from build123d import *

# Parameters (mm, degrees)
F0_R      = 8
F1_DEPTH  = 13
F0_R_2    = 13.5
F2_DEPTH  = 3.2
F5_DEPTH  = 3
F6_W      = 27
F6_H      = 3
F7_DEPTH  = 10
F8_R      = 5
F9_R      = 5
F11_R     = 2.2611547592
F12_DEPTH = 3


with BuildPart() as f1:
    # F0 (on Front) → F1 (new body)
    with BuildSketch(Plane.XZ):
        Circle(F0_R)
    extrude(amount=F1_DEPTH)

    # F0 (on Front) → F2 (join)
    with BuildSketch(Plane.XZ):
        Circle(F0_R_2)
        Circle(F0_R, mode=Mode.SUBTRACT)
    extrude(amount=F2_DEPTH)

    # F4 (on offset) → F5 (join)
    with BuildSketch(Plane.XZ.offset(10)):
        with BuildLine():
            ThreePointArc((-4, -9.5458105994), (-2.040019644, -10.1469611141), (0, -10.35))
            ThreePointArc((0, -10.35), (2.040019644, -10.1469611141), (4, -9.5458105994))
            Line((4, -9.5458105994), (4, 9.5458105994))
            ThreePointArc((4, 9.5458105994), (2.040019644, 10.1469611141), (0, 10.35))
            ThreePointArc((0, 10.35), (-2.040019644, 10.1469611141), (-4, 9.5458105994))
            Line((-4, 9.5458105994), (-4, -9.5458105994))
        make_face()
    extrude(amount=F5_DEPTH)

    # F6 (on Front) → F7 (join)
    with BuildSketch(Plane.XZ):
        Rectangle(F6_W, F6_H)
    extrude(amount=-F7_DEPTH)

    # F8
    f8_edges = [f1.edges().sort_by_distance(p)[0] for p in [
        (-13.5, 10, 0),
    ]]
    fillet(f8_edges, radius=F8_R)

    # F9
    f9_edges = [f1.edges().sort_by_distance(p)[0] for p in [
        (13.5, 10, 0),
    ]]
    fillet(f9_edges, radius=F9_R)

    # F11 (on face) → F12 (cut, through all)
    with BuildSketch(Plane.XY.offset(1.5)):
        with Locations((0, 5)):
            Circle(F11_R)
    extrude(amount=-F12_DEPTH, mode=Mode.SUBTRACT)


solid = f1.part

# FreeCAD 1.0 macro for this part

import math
import FreeCAD as App
import Part
import Sketcher


def edges_at(feature, points):
    """Names of the edges that pass closest to the given points."""
    edges = feature.Shape.Edges
    near = lambda p: min(range(len(edges)), key=lambda i: edges[i].distToShape(Part.Vertex(*p))[0])
    return sorted({f"Edge{near(p) + 1}" for p in points})

doc = App.newDocument("Part")
body = doc.addObject("PartDesign::Body", "Body")

# Sketch on XZ plane
sketch1 = body.newObject("Sketcher::SketchObject", "Sketch")
sketch1.AttachmentSupport = (doc.getObject("XZ_Plane"), [""])
sketch1.MapMode = "FlatFace"
sketch1.addGeometry(Part.Circle(App.Vector(0, 0, 0), App.Vector(0, 0, 1), 8), False)
sketch1.addConstraint(Sketcher.Constraint("Coincident", 0, 3, -1, 1))
sketch1.addConstraint(Sketcher.Constraint("Diameter", 0, 16.0))
pad1 = body.newObject("PartDesign::Pad", "Pad")
pad1.Profile = sketch1
pad1.Length = 13

# Sketch on XZ plane
sketch2 = body.newObject("Sketcher::SketchObject", "Sketch001")
sketch2.AttachmentSupport = (doc.getObject("XZ_Plane"), [""])
sketch2.MapMode = "FlatFace"
sketch2.addGeometry(Part.Circle(App.Vector(0, 0, 0), App.Vector(0, 0, 1), 14), False)
sketch2.addGeometry(Part.Circle(App.Vector(0, 0, 0), App.Vector(0, 0, 1), 8), False)
sketch2.addConstraint(Sketcher.Constraint("Coincident", 0, 3, -1, 1))
sketch2.addConstraint(Sketcher.Constraint("Coincident", 1, 3, -1, 1))
sketch2.addConstraint(Sketcher.Constraint("Diameter", 0, 27.0))
sketch2.addConstraint(Sketcher.Constraint("Diameter", 1, 16.0))
pad2 = body.newObject("PartDesign::Pad", "Pad001")
pad2.Profile = sketch2
pad2.Length = 3.2

# Sketch on XZ plane
sketch3 = body.newObject("Sketcher::SketchObject", "Sketch002")
sketch3.AttachmentSupport = (doc.getObject("XZ_Plane"), [""])
sketch3.MapMode = "FlatFace"
sketch3.AttachmentOffset = App.Placement(App.Vector(0, 0, 10), App.Rotation())
sketch3.addGeometry(Part.ArcOfCircle(Part.Circle(App.Vector(0, 0, 0), App.Vector(0, 0, 1), 10.4), math.radians(-113), math.radians(-90)), False)
sketch3.addGeometry(Part.ArcOfCircle(Part.Circle(App.Vector(0, 0, 0), App.Vector(0, 0, 1), 10.4), math.radians(-90), math.radians(-67)), False)
sketch3.addGeometry(Part.LineSegment(App.Vector(4, -9.5, 0), App.Vector(4, 9.5, 0)), False)
sketch3.addGeometry(Part.ArcOfCircle(Part.Circle(App.Vector(0, 0, 0), App.Vector(0, 0, 1), 10.4), math.radians(67), math.radians(90)), False)
sketch3.addGeometry(Part.ArcOfCircle(Part.Circle(App.Vector(0, 0, 0), App.Vector(0, 0, 1), 10.4), math.radians(90), math.radians(113)), False)
sketch3.addGeometry(Part.LineSegment(App.Vector(-4, 9.5, 0), App.Vector(-4, -9.5, 0)), False)
sketch3.addConstraint(Sketcher.Constraint("Tangent", 0, 2, 1, 1))
sketch3.addConstraint(Sketcher.Constraint("Coincident", 1, 2, 2, 1))
sketch3.addConstraint(Sketcher.Constraint("Coincident", 2, 2, 3, 1))
sketch3.addConstraint(Sketcher.Constraint("Tangent", 3, 2, 4, 1))
sketch3.addConstraint(Sketcher.Constraint("Coincident", 4, 2, 5, 1))
sketch3.addConstraint(Sketcher.Constraint("Coincident", 5, 2, 0, 1))
sketch3.addConstraint(Sketcher.Constraint("Vertical", 2))
sketch3.addConstraint(Sketcher.Constraint("Vertical", 5))
sketch3.addConstraint(Sketcher.Constraint("Coincident", 0, 3, -1, 1))
sketch3.addConstraint(Sketcher.Constraint("Coincident", 3, 3, -1, 1))
sketch3.addConstraint(Sketcher.Constraint("Equal", 0, 1))
sketch3.addConstraint(Sketcher.Constraint("Equal", 1, 3))
sketch3.addConstraint(Sketcher.Constraint("Equal", 3, 4))
sketch3.addConstraint(Sketcher.Constraint("PointOnObject", 0, 2, -2))
sketch3.addConstraint(Sketcher.Constraint("PointOnObject", 3, 2, -2))
sketch3.addConstraint(Sketcher.Constraint("Horizontal", 2, 2, 4, 2))
sketch3.addConstraint(Sketcher.Constraint("Radius", 0, 10.35))
sketch3.addConstraint(Sketcher.Constraint("DistanceX", -1, 1, 1, 2, 4.0))
pad3 = body.newObject("PartDesign::Pad", "Pad002")
pad3.Profile = sketch3
pad3.Length = 3

# Sketch on XZ plane
sketch4 = body.newObject("Sketcher::SketchObject", "Sketch003")
sketch4.AttachmentSupport = (doc.getObject("XZ_Plane"), [""])
sketch4.MapMode = "FlatFace"
sketch4.addGeometry(Part.LineSegment(App.Vector(-13.5, 1.5, 0), App.Vector(-13.5, -1.5, 0)), False)
sketch4.addGeometry(Part.LineSegment(App.Vector(-13.5, -1.5, 0), App.Vector(13.5, -1.5, 0)), False)
sketch4.addGeometry(Part.LineSegment(App.Vector(13.5, -1.5, 0), App.Vector(13.5, 1.5, 0)), False)
sketch4.addGeometry(Part.LineSegment(App.Vector(13.5, 1.5, 0), App.Vector(-13.5, 1.5, 0)), False)
sketch4.addConstraint(Sketcher.Constraint("Coincident", 0, 2, 1, 1))
sketch4.addConstraint(Sketcher.Constraint("Coincident", 1, 2, 2, 1))
sketch4.addConstraint(Sketcher.Constraint("Coincident", 2, 2, 3, 1))
sketch4.addConstraint(Sketcher.Constraint("Coincident", 3, 2, 0, 1))
sketch4.addConstraint(Sketcher.Constraint("Vertical", 0))
sketch4.addConstraint(Sketcher.Constraint("Horizontal", 1))
sketch4.addConstraint(Sketcher.Constraint("Vertical", 2))
sketch4.addConstraint(Sketcher.Constraint("Horizontal", 3))
sketch4.addConstraint(Sketcher.Constraint("Symmetric", 0, 2, 2, 2, -1, 1))
sketch4.addConstraint(Sketcher.Constraint("DistanceX", 1, 1, 1, 2, 27.0))
sketch4.addConstraint(Sketcher.Constraint("DistanceY", 0, 2, 0, 1, 3.0))
pad4 = body.newObject("PartDesign::Pad", "Pad003")
pad4.Profile = sketch4
pad4.Length = 10
pad4.Reversed = True
doc.recompute()

fillet = body.newObject("PartDesign::Fillet", "Fillet")
fillet.Base = (pad4, edges_at(pad4, [(-13.5, 10, 0)]))
fillet.Radius = 5
doc.recompute()

fillet2 = body.newObject("PartDesign::Fillet", "Fillet001")
fillet2.Base = (fillet, edges_at(fillet, [(13.5, 10, 0)]))
fillet2.Radius = 5

# Sketch on XY plane
sketch5 = body.newObject("Sketcher::SketchObject", "Sketch004")
sketch5.AttachmentSupport = (doc.getObject("XY_Plane"), [""])
sketch5.MapMode = "FlatFace"
sketch5.AttachmentOffset = App.Placement(App.Vector(0, 0, 1.5), App.Rotation())
sketch5.addGeometry(Part.Circle(App.Vector(0, 5, 0), App.Vector(0, 0, 1), 2.3), False)
sketch5.addConstraint(Sketcher.Constraint("PointOnObject", 0, 3, -2))
sketch5.addConstraint(Sketcher.Constraint("DistanceY", -1, 1, 0, 3, 5.0))
sketch5.addConstraint(Sketcher.Constraint("Diameter", 0, 4.52231))
pocket1 = body.newObject("PartDesign::Pocket", "Pocket")
pocket1.Profile = sketch5
pocket1.Type = "ThroughAll"

doc.recompute()
